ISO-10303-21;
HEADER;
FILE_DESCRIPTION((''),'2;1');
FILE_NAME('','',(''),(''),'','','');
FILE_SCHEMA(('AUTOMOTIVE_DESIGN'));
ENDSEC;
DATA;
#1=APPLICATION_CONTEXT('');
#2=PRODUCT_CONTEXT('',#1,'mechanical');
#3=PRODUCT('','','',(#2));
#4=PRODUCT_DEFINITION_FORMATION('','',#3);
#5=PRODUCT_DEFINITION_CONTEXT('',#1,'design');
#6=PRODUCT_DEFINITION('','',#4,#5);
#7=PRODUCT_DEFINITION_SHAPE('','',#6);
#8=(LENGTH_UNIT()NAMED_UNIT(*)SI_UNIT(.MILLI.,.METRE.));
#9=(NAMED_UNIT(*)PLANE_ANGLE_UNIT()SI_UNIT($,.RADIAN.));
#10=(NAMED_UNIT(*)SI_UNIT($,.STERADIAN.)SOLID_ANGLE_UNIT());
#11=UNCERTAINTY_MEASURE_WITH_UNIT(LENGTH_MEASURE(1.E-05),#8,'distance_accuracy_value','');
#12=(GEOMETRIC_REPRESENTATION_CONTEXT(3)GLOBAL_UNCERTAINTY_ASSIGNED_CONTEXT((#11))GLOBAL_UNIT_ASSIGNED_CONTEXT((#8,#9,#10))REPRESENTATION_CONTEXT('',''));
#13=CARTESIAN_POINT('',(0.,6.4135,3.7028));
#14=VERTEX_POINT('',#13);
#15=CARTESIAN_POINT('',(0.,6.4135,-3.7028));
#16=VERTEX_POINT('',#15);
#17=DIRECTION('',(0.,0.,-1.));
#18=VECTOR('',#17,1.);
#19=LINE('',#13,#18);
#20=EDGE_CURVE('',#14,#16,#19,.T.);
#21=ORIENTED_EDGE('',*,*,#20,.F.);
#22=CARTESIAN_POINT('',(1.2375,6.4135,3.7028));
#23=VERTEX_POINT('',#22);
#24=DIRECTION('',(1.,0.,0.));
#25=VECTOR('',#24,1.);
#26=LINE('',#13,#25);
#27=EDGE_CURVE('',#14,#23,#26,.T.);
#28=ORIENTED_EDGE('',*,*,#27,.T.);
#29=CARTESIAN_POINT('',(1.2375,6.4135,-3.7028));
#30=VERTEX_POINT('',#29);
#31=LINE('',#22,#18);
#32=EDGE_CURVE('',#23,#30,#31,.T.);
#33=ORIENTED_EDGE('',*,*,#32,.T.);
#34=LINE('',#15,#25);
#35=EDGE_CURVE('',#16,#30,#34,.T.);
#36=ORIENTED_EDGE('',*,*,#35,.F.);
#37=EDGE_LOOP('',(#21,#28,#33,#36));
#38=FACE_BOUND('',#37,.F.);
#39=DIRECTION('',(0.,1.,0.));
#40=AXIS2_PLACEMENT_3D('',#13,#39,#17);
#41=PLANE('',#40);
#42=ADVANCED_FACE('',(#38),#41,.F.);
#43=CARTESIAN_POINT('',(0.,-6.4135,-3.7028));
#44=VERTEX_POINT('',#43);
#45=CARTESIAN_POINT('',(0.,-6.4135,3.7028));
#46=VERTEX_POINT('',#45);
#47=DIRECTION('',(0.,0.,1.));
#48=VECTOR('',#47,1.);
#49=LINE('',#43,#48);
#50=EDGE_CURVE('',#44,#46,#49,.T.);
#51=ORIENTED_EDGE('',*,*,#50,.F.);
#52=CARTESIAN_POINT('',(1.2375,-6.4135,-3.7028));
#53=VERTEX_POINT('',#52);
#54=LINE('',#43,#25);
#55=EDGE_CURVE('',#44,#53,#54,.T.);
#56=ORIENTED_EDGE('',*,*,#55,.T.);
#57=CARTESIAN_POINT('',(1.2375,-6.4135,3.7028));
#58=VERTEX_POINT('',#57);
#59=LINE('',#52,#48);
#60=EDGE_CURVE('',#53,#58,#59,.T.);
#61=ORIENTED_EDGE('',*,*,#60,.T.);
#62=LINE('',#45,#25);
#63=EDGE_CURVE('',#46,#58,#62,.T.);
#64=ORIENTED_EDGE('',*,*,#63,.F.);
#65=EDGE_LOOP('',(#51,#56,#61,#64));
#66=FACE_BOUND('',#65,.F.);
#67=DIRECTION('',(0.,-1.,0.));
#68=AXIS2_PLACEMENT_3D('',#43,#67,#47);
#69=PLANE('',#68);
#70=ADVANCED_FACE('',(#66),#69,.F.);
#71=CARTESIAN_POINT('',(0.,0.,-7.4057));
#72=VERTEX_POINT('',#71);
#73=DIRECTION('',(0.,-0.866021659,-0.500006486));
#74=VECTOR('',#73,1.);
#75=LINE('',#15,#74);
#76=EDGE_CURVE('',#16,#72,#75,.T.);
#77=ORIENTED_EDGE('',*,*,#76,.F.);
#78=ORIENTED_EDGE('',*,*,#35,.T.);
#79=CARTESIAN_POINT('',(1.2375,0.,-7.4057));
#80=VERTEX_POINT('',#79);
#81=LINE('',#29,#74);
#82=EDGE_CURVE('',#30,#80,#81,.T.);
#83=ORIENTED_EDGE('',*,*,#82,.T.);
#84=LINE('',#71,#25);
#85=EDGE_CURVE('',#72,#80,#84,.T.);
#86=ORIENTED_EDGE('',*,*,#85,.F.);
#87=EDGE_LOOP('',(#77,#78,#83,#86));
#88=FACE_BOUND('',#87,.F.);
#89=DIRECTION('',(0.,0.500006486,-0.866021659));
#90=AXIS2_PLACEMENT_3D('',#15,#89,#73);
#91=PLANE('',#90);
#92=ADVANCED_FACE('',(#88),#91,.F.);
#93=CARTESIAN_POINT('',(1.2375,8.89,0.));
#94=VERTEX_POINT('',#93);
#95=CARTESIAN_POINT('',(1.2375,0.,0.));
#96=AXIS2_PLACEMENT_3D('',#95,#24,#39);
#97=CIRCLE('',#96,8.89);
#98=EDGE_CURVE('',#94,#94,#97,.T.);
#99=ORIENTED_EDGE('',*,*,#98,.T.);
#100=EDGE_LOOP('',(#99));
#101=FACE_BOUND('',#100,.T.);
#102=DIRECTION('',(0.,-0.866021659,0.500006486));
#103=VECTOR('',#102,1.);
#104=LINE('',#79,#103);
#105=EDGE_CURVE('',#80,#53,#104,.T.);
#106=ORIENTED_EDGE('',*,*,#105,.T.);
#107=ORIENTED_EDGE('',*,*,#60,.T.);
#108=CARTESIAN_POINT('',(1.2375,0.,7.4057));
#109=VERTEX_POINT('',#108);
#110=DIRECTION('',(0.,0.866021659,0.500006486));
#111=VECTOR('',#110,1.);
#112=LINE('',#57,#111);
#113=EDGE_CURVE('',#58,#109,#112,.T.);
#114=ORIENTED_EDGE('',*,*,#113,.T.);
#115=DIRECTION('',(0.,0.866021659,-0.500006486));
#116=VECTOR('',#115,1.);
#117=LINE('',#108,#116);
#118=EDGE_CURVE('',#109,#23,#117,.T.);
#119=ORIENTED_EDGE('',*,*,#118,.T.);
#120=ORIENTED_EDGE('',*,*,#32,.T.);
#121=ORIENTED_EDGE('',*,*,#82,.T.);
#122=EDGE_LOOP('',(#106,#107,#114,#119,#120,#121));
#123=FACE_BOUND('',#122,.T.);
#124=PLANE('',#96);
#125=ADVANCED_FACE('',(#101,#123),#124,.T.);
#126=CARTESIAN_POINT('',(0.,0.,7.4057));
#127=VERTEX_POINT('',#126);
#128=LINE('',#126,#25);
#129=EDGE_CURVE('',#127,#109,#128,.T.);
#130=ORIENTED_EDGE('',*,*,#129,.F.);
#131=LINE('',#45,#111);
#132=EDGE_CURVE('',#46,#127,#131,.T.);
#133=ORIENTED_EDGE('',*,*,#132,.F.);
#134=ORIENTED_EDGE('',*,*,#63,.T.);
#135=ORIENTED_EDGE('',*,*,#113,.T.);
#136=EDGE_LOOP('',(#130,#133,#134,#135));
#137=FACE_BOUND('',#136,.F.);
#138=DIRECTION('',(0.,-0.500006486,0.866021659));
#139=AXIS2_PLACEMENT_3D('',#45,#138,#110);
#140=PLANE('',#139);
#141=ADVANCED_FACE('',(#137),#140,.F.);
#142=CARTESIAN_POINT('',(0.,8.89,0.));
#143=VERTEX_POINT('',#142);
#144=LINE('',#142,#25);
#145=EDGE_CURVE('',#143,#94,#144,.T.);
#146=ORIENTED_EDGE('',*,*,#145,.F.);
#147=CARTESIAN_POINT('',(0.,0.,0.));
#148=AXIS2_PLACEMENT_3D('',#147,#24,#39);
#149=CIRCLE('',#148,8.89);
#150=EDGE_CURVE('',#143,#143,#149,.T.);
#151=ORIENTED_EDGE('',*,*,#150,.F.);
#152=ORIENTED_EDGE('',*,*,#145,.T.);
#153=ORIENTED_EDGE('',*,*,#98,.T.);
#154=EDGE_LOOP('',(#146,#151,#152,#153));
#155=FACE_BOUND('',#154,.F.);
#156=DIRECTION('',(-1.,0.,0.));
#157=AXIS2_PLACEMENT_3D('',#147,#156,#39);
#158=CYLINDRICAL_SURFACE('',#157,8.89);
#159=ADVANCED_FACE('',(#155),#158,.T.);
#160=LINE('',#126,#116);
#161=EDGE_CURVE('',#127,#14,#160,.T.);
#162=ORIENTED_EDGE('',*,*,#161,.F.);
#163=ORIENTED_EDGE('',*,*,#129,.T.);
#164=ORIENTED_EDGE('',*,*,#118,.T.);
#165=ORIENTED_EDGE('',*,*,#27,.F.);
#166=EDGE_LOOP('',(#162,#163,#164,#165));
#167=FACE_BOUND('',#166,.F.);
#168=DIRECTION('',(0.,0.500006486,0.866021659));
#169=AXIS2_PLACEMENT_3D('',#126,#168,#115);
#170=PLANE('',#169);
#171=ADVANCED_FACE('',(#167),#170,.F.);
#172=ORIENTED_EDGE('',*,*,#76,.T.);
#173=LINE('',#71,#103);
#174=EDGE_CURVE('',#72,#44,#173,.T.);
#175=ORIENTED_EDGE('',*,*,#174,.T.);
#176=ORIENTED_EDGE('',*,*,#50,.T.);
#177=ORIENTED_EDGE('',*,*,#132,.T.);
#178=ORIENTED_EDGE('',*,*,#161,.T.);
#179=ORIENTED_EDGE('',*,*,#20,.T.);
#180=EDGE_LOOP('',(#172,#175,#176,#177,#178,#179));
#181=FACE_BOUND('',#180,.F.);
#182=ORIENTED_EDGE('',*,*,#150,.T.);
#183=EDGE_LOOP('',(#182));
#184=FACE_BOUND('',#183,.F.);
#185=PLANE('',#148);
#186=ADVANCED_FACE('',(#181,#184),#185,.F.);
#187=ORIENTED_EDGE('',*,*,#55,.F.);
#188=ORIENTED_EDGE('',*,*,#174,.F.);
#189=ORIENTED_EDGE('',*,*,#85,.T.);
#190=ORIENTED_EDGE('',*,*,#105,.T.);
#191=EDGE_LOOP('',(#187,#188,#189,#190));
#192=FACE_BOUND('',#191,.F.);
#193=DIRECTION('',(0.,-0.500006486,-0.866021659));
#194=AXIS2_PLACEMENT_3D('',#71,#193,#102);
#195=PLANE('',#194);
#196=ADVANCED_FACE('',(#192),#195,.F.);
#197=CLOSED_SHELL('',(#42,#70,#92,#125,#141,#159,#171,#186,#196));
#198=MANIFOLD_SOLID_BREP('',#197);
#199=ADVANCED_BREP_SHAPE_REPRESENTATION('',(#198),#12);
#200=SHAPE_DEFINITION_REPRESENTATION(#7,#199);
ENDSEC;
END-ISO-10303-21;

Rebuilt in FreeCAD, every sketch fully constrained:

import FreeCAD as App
import Part
import Sketcher
Q = App.Units.Quantity

doc = App.newDocument("Part")
body = doc.addObject("PartDesign::Body", "Body")

# Sketch on YZ plane
sketch1 = doc.addObject("Sketcher::SketchObject", "Sketch")
body.addObject(sketch1)
sketch1.AttachmentSupport = (doc.YZ_Plane, [""])
sketch1.MapMode = "FlatFace"
sketch1.addGeometry([
    Part.Circle(App.Vector(0, 0, 0), App.Vector(0, 0, 1), 8.89),  # 0
    Part.LineSegment(App.Vector(0, -7.4057, 0), App.Vector(-6.4135, -3.7028, 0)),  # 1
    Part.LineSegment(App.Vector(-6.4135, -3.7028, 0), App.Vector(-6.4135, 3.7028, 0)),  # 2
    Part.LineSegment(App.Vector(-6.4135, 3.7028, 0), App.Vector(0, 7.4057, 0)),  # 3
    Part.LineSegment(App.Vector(0, 7.4057, 0), App.Vector(6.4135, 3.7028, 0)),  # 4
    Part.LineSegment(App.Vector(6.4135, 3.7028, 0), App.Vector(6.4135, -3.7028, 0)),  # 5
    Part.LineSegment(App.Vector(6.4135, -3.7028, 0), App.Vector(0, -7.4057, 0)),  # 6
], False)
sketch1.addConstraint([
    Sketcher.Constraint("Coincident", 1, 2, 2, 1),
    Sketcher.Constraint("Coincident", 2, 2, 3, 1),
    Sketcher.Constraint("Coincident", 3, 2, 4, 1),
    Sketcher.Constraint("Coincident", 4, 2, 5, 1),
    Sketcher.Constraint("Coincident", 5, 2, 6, 1),
    Sketcher.Constraint("Coincident", 6, 2, 1, 1),
    Sketcher.Constraint("Vertical", 2),
    Sketcher.Constraint("Vertical", 5),
    Sketcher.Constraint("Coincident", 0, 3, -1, 1),
    Sketcher.Constraint("Symmetric", 1, 2, 4, 2, -1, 1),
    Sketcher.Constraint("Symmetric", 3, 2, 6, 2, -1, 1),
    Sketcher.Constraint("PointOnObject", 3, 2, -2),
    Sketcher.Constraint("Parallel", 3, 6),
    Sketcher.Constraint("Horizontal", 2, 2, 4, 2),
    Sketcher.Constraint("Diameter", 0, Q("0.7 in")),
    Sketcher.Constraint("Angle", 1, Q("149.9996 deg")),
    Sketcher.Constraint("DistanceX", 2, 2, 4, 2, Q("0.505 in")),
    Sketcher.Constraint("DistanceY", 2, 1, 2, 2, Q("7.4056 mm")),
])
pad1 = doc.addObject("PartDesign::Pad", "Pad")
body.addObject(pad1)
pad1.Profile = sketch1
pad1.Length = 1.2375

doc.recompute()
